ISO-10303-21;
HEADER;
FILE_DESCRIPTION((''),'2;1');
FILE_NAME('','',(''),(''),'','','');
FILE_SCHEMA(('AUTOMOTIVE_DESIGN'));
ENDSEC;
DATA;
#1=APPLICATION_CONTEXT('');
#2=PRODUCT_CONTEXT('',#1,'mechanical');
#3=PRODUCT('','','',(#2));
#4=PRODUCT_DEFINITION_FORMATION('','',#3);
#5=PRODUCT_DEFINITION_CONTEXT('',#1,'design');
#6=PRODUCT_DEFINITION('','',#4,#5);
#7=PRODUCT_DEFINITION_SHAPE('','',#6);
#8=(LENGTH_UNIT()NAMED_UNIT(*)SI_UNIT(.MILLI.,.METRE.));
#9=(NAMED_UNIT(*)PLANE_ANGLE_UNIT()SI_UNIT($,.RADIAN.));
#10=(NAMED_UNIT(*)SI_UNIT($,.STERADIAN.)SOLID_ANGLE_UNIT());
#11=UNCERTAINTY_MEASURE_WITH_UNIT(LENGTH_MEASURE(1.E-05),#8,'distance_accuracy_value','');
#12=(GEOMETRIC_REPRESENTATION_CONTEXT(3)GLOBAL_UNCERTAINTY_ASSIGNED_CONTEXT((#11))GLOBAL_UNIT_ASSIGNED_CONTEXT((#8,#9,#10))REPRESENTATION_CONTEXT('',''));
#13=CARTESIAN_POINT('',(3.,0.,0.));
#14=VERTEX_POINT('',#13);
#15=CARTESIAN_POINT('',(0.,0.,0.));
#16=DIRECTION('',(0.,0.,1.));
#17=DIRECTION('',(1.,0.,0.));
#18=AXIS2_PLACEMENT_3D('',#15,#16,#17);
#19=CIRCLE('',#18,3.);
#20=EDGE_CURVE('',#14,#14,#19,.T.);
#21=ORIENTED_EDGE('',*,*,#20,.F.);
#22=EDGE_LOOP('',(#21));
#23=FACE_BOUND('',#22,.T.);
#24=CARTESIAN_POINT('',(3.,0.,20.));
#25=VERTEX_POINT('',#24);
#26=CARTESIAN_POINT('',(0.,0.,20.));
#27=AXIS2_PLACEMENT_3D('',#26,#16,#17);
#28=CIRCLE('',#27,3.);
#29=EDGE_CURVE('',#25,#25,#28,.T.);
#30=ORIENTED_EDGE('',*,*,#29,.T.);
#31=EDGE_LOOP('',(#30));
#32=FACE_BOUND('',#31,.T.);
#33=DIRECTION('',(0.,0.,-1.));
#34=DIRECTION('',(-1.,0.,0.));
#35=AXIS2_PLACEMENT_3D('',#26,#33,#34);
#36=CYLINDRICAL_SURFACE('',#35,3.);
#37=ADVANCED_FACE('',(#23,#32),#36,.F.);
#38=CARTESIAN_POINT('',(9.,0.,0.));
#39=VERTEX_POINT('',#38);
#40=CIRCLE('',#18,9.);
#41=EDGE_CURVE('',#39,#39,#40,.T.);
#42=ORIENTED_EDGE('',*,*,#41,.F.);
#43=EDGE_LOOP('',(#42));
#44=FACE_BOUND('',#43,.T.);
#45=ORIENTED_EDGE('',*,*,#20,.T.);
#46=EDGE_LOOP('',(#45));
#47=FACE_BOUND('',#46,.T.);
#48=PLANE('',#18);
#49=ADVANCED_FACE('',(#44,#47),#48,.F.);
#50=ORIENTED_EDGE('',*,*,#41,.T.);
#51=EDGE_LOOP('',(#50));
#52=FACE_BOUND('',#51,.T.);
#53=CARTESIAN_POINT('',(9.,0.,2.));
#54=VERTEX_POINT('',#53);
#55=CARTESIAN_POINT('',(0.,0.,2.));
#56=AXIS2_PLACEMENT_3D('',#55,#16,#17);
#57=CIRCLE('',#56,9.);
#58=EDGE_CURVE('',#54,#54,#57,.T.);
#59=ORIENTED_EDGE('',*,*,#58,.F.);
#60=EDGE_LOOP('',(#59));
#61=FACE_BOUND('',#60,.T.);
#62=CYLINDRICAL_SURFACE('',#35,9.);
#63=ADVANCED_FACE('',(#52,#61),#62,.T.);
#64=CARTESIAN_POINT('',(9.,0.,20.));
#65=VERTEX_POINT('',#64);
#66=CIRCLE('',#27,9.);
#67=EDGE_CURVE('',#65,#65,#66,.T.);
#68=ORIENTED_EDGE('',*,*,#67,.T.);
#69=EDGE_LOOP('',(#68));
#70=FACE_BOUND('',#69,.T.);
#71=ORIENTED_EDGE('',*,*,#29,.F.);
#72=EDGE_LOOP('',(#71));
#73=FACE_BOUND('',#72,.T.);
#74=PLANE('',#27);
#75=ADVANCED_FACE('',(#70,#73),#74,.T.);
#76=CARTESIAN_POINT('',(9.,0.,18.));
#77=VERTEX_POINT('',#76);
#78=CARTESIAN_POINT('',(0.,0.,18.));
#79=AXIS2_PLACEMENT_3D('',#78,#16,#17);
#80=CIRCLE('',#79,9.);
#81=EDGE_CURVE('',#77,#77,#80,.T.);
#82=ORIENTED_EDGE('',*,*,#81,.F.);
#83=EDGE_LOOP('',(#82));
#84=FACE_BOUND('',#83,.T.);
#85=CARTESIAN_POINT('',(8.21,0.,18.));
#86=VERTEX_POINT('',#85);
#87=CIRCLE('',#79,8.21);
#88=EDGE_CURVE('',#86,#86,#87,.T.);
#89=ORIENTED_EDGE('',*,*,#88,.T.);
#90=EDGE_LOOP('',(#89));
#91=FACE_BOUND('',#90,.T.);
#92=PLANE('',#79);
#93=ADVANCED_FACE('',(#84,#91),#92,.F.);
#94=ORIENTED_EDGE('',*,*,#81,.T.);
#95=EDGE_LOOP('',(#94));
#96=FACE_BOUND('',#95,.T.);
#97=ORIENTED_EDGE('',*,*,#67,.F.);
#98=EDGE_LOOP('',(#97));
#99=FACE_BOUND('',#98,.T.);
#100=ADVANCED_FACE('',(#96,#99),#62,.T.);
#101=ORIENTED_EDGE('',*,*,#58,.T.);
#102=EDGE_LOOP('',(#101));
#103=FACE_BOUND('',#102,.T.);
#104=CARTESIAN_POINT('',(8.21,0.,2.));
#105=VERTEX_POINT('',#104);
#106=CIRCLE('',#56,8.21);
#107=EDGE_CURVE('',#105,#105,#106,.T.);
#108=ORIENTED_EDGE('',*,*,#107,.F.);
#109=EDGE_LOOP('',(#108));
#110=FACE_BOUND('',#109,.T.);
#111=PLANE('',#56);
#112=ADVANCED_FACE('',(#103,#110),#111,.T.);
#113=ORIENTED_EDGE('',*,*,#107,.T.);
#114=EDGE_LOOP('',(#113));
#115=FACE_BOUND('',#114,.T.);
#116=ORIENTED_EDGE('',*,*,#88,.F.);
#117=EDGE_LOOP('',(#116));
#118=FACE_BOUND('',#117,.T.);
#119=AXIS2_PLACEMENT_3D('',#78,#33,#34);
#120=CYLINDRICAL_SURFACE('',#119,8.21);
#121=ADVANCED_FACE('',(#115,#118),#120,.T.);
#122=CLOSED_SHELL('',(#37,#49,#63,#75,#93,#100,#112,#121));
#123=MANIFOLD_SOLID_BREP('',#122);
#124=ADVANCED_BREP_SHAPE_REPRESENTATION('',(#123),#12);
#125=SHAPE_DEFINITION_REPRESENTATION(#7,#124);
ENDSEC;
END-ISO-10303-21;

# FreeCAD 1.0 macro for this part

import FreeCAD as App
import Part
import Sketcher
from FreeCAD import Vector
Q = App.Units.Quantity

doc = App.newDocument("Part")
body = doc.addObject("PartDesign::Body", "Body")

# Sketch on XY plane
sketch1 = body.newObject("Sketcher::SketchObject", "Sketch")
sketch1.AttachmentSupport = (doc.getObject("XY_Plane"), [""])
sketch1.MapMode = "FlatFace"
sketch1.addGeometry([
    Part.Circle(Vector(0, 0, 0), Vector(0, 0, 1), 9),
    Part.Circle(Vector(0, 0, 0), Vector(0, 0, 1), 3),
], False)
sketch1.addConstraint([
    Sketcher.Constraint("Coincident", 0, 3, -1, 1),
    Sketcher.Constraint("Coincident", 1, 3, -1, 1),
    Sketcher.Constraint("Diameter", 0, Q("18 mm")),
    Sketcher.Constraint("Diameter", 1, Q("6 mm")),
])
pad1 = body.newObject("PartDesign::Pad", "Pad")
pad1.Profile = sketch1
pad1.Length = 20

# Sketch on XY plane
sketch2 = body.newObject("Sketcher::SketchObject", "Sketch001")
sketch2.AttachmentSupport = (doc.getObject("XY_Plane"), [""])
sketch2.MapMode = "FlatFace"
sketch2.AttachmentOffset = App.Placement(Vector(0, 0, 10), App.Rotation())
sketch2.addGeometry([
    Part.Circle(Vector(0, 0, 0), Vector(0, 0, 1), 18.21),
    Part.Circle(Vector(0, 0, 0), Vector(0, 0, 1), 8.21),
], False)
sketch2.addConstraint([
    Sketcher.Constraint("Coincident", 0, 3, -1, 1),
    Sketcher.Constraint("Coincident", 1, 3, -1, 1),
    Sketcher.Constraint("Diameter", 0, Q("36.42 mm")),
    Sketcher.Constraint("Diameter", 1, Q("16.42 mm")),
])
pocket1 = body.newObject("PartDesign::Pocket", "Pocket")
pocket1.Profile = sketch2
pocket1.Type = "TwoLengths"
pocket1.Length = 8
pocket1.Length2 = 8
pocket1.Reversed = True

doc.recompute()
